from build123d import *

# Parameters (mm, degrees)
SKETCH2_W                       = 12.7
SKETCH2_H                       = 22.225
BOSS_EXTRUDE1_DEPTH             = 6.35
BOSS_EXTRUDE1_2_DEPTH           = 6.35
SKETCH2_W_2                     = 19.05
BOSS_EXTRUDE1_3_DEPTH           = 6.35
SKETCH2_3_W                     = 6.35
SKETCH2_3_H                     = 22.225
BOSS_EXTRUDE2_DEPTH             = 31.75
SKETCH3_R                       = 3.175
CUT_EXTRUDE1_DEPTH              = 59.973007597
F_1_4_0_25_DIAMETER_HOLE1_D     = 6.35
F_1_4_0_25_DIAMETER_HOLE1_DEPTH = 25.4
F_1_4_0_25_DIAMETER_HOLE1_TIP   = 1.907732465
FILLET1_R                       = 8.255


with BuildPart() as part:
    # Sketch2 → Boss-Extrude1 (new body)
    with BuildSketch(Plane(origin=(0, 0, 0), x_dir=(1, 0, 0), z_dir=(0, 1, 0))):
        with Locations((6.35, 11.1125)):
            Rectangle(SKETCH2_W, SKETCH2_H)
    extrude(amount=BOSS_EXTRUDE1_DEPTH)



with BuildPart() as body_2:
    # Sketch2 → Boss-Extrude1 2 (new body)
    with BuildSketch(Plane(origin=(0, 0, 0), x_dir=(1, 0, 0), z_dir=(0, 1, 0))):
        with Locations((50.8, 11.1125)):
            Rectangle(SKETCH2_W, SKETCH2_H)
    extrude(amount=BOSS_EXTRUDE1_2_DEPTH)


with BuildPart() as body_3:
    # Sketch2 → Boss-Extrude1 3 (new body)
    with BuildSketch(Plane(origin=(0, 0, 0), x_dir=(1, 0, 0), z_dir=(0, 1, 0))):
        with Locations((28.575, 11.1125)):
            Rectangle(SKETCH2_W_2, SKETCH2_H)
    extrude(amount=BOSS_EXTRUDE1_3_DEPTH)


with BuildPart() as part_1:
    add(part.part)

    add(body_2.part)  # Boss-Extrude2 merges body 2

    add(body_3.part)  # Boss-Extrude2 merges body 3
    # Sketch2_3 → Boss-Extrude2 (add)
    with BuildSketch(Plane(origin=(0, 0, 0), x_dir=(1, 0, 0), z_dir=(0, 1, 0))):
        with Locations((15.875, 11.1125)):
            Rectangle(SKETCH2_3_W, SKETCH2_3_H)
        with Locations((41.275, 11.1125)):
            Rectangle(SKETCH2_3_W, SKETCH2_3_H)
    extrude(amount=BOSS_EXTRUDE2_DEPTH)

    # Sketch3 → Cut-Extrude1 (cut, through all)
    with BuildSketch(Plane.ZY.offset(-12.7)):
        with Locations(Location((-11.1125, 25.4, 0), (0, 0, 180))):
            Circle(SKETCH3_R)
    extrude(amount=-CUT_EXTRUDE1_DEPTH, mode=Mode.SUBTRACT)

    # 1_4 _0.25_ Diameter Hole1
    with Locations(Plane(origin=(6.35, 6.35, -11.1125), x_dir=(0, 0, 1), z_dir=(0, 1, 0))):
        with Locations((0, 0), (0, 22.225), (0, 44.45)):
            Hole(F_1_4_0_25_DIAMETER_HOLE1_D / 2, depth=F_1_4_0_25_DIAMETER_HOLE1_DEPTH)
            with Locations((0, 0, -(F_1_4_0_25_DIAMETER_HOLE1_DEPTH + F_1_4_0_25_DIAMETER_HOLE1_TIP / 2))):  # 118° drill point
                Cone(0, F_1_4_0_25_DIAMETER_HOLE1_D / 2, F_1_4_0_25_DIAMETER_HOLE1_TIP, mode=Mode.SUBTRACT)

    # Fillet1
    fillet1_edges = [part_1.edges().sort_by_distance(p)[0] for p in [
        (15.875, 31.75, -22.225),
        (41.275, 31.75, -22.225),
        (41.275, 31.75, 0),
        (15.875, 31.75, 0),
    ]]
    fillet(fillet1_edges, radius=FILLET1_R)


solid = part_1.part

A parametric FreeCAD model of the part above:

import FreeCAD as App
import Part
import Sketcher
from FreeCAD import Vector
Q = App.Units.Quantity


def edges_at(feature, points):
    """Names of the edges that pass closest to the given points."""
    edges = feature.Shape.Edges
    near = lambda p: min(range(len(edges)), key=lambda i: edges[i].distToShape(Part.Vertex(*p))[0])
    return sorted({f"Edge{near(p) + 1}" for p in points})

doc = App.newDocument("Part")
params = doc.addObject("Spreadsheet::Sheet", "Params")
for row, (alias, value) in enumerate([
    ("sketch1_width", "0.5 in"),
    ("sketch1_height", "0.875 in"),
    ("pad1_length", "0.25 in"),
    ("sketch2_width", "0.5 in"),
    ("sketch2_height", "0.875 in"),
    ("pad2_length", "0.25 in"),
    ("sketch3_width", "0.75 in"),
    ("sketch3_height", "0.875 in"),
    ("pad3_length", "0.25 in"),
    ("sketch4_width", "0.25 in"),
    ("sketch4_height", "0.875 in"),
    ("pad4_length", "1.25 in"),
    ("sketch5_diameter", "0.25 in"),
    ("sketch6_diameter", "0.25 in"),
    ("hole_diameter", "0.25 in"),
    ("hole_depth", "1 in"),
    ("fillet_radius", "0.325 in"),
], start=1):
    params.set(f"A{row}", alias)
    params.set(f"B{row}", "=" + value)
    params.setAlias(f"B{row}", alias)

body = doc.addObject("PartDesign::Body", "Body")

# Sketch on XZ plane
sketch1 = body.newObject("Sketcher::SketchObject", "Sketch")
sketch1.AttachmentSupport = (doc.getObject("XZ_Plane"), [""])
sketch1.MapMode = "FlatFace"
sketch1.addGeometry(Part.LineSegment(Vector(0, -22, 0), Vector(0, 0, 0)), False)
sketch1.addGeometry(Part.LineSegment(Vector(0, 0, 0), Vector(13, 0, 0)), False)
sketch1.addGeometry(Part.LineSegment(Vector(13, 0, 0), Vector(13, -22, 0)), False)
sketch1.addGeometry(Part.LineSegment(Vector(13, -22, 0), Vector(0, -22, 0)), False)
sketch1.addConstraint(Sketcher.Constraint("Coincident", 0, 2, 1, 1))
sketch1.addConstraint(Sketcher.Constraint("Coincident", 1, 2, 2, 1))
sketch1.addConstraint(Sketcher.Constraint("Coincident", 2, 2, 3, 1))
sketch1.addConstraint(Sketcher.Constraint("Coincident", 3, 2, 0, 1))
sketch1.addConstraint(Sketcher.Constraint("Vertical", 0))
sketch1.addConstraint(Sketcher.Constraint("Horizontal", 1))
sketch1.addConstraint(Sketcher.Constraint("Vertical", 2))
sketch1.addConstraint(Sketcher.Constraint("Horizontal", 3))
sketch1.addConstraint(Sketcher.Constraint("Coincident", 0, 2, -1, 1))
sketch1.addConstraint(Sketcher.Constraint("DistanceX", 1, 1, 1, 2, Q("0.5 in")))
sketch1.addConstraint(Sketcher.Constraint("DistanceY", 0, 1, 0, 2, Q("0.875 in")))
sketch1.setExpression("Constraints[9]", "Params.sketch1_width")
sketch1.setExpression("Constraints[10]", "Params.sketch1_height")
pad1 = body.newObject("PartDesign::Pad", "Pad")
pad1.Profile = sketch1
pad1.setExpression("Length", "Params.pad1_length")
pad1.Reversed = True
body2 = doc.addObject("PartDesign::Body", "Body001")

# Sketch on XZ plane
sketch2 = body2.newObject("Sketcher::SketchObject", "Sketch001")
sketch2.AttachmentSupport = (doc.getObject("XZ_Plane001"), [""])
sketch2.MapMode = "FlatFace"
sketch2.addGeometry(Part.LineSegment(Vector(44, -22, 0), Vector(44, 0, 0)), False)
sketch2.addGeometry(Part.LineSegment(Vector(44, 0, 0), Vector(57, 0, 0)), False)
sketch2.addGeometry(Part.LineSegment(Vector(57, 0, 0), Vector(57, -22, 0)), False)
sketch2.addGeometry(Part.LineSegment(Vector(57, -22, 0), Vector(44, -22, 0)), False)
sketch2.addConstraint(Sketcher.Constraint("Coincident", 0, 2, 1, 1))
sketch2.addConstraint(Sketcher.Constraint("Coincident", 1, 2, 2, 1))
sketch2.addConstraint(Sketcher.Constraint("Coincident", 2, 2, 3, 1))
sketch2.addConstraint(Sketcher.Constraint("Coincident", 3, 2, 0, 1))
sketch2.addConstraint(Sketcher.Constraint("Vertical", 0))
sketch2.addConstraint(Sketcher.Constraint("Horizontal", 1))
sketch2.addConstraint(Sketcher.Constraint("Vertical", 2))
sketch2.addConstraint(Sketcher.Constraint("Horizontal", 3))
sketch2.addConstraint(Sketcher.Constraint("PointOnObject", 0, 2, -1))
sketch2.addConstraint(Sketcher.Constraint("DistanceX", 1, 1, 1, 2, Q("0.5 in")))
sketch2.addConstraint(Sketcher.Constraint("DistanceY", 0, 1, 0, 2, Q("0.875 in")))
sketch2.addConstraint(Sketcher.Constraint("DistanceX", -1, 1, 0, 2, Q("1.75 in")))
sketch2.setExpression("Constraints[9]", "Params.sketch2_width")
sketch2.setExpression("Constraints[10]", "Params.sketch2_height")
pad2 = body2.newObject("PartDesign::Pad", "Pad001")
pad2.Profile = sketch2
pad2.setExpression("Length", "Params.pad2_length")
pad2.Reversed = True
body3 = doc.addObject("PartDesign::Body", "Body002")

# Sketch on XZ plane
sketch3 = body3.newObject("Sketcher::SketchObject", "Sketch002")
sketch3.AttachmentSupport = (doc.getObject("XZ_Plane002"), [""])
sketch3.MapMode = "FlatFace"
sketch3.addGeometry(Part.LineSegment(Vector(19, -22, 0), Vector(19, 0, 0)), False)
sketch3.addGeometry(Part.LineSegment(Vector(19, 0, 0), Vector(38, 0, 0)), False)
sketch3.addGeometry(Part.LineSegment(Vector(38, 0, 0), Vector(38, -22, 0)), False)
sketch3.addGeometry(Part.LineSegment(Vector(38, -22, 0), Vector(19, -22, 0)), False)
sketch3.addConstraint(Sketcher.Constraint("Coincident", 0, 2, 1, 1))
sketch3.addConstraint(Sketcher.Constraint("Coincident", 1, 2, 2, 1))
sketch3.addConstraint(Sketcher.Constraint("Coincident", 2, 2, 3, 1))
sketch3.addConstraint(Sketcher.Constraint("Coincident", 3, 2, 0, 1))
sketch3.addConstraint(Sketcher.Constraint("Vertical", 0))
sketch3.addConstraint(Sketcher.Constraint("Horizontal", 1))
sketch3.addConstraint(Sketcher.Constraint("Vertical", 2))
sketch3.addConstraint(Sketcher.Constraint("Horizontal", 3))
sketch3.addConstraint(Sketcher.Constraint("PointOnObject", 0, 2, -1))
sketch3.addConstraint(Sketcher.Constraint("DistanceX", 1, 1, 1, 2, Q("0.75 in")))
sketch3.addConstraint(Sketcher.Constraint("DistanceX", -1, 1, 1, 2, Q("1.5 in")))
sketch3.addConstraint(Sketcher.Constraint("DistanceY", 0, 1, 0, 2, Q("0.875 in")))
sketch3.setExpression("Constraints[9]", "Params.sketch3_width")
sketch3.setExpression("Constraints[11]", "Params.sketch3_height")
pad3 = body3.newObject("PartDesign::Pad", "Pad002")
pad3.Profile = sketch3
pad3.setExpression("Length", "Params.pad3_length")
pad3.Reversed = True
body.AllowCompound = True
doc.recompute()

boolean = body.newObject("PartDesign::Boolean", "Boolean")
boolean.Type = "Fuse"
boolean.addObjects([body2])
doc.recompute()

boolean2 = body.newObject("PartDesign::Boolean", "Boolean001")
boolean2.Type = "Fuse"
boolean2.addObjects([body3])

# Sketch on XZ plane
sketch4 = body.newObject("Sketcher::SketchObject", "Sketch003")
sketch4.AttachmentSupport = (doc.getObject("XZ_Plane"), [""])
sketch4.MapMode = "FlatFace"
sketch4.addGeometry(Part.LineSegment(Vector(13, -22, 0), Vector(13, 0, 0)), False)
sketch4.addGeometry(Part.LineSegment(Vector(13, 0, 0), Vector(19, 0, 0)), False)
sketch4.addGeometry(Part.LineSegment(Vector(19, 0, 0), Vector(19, -22, 0)), False)
sketch4.addGeometry(Part.LineSegment(Vector(19, -22, 0), Vector(13, -22, 0)), False)
sketch4.addGeometry(Part.LineSegment(Vector(38, -22, 0), Vector(38, 0, 0)), False)
sketch4.addGeometry(Part.LineSegment(Vector(38, 0, 0), Vector(44, 0, 0)), False)
sketch4.addGeometry(Part.LineSegment(Vector(44, 0, 0), Vector(44, -22, 0)), False)
sketch4.addGeometry(Part.LineSegment(Vector(44, -22, 0), Vector(38, -22, 0)), False)
sketch4.addConstraint(Sketcher.Constraint("Coincident", 0, 2, 1, 1))
sketch4.addConstraint(Sketcher.Constraint("Coincident", 1, 2, 2, 1))
sketch4.addConstraint(Sketcher.Constraint("Coincident", 2, 2, 3, 1))
sketch4.addConstraint(Sketcher.Constraint("Coincident", 3, 2, 0, 1))
sketch4.addConstraint(Sketcher.Constraint("Coincident", 4, 2, 5, 1))
sketch4.addConstraint(Sketcher.Constraint("Coincident", 5, 2, 6, 1))
sketch4.addConstraint(Sketcher.Constraint("Coincident", 6, 2, 7, 1))
sketch4.addConstraint(Sketcher.Constraint("Coincident", 7, 2, 4, 1))
sketch4.addConstraint(Sketcher.Constraint("Vertical", 0))
sketch4.addConstraint(Sketcher.Constraint("Horizontal", 1))
sketch4.addConstraint(Sketcher.Constraint("Vertical", 2))
sketch4.addConstraint(Sketcher.Constraint("Horizontal", 3))
sketch4.addConstraint(Sketcher.Constraint("Vertical", 4))
sketch4.addConstraint(Sketcher.Constraint("Horizontal", 5))
sketch4.addConstraint(Sketcher.Constraint("Vertical", 6))
sketch4.addConstraint(Sketcher.Constraint("Horizontal", 7))
sketch4.addConstraint(Sketcher.Constraint("PointOnObject", 0, 2, -1))
sketch4.addConstraint(Sketcher.Constraint("PointOnObject", 4, 2, -1))
sketch4.addConstraint(Sketcher.Constraint("Horizontal", 3, 2, 6, 2))
sketch4.addConstraint(Sketcher.Constraint("Equal", 3, 5))
sketch4.addConstraint(Sketcher.Constraint("DistanceX", 0, 2, 4, 2, Q("1 in")))
sketch4.addConstraint(Sketcher.Constraint("DistanceX", 1, 1, 1, 2, Q("0.25 in")))
sketch4.addConstraint(Sketcher.Constraint("DistanceX", -1, 1, 0, 2, Q("0.5 in")))
sketch4.addConstraint(Sketcher.Constraint("DistanceY", 0, 1, 0, 2, Q("0.875 in")))
sketch4.setExpression("Constraints[21]", "Params.sketch4_width")
sketch4.setExpression("Constraints[23]", "Params.sketch4_height")
pad4 = body.newObject("PartDesign::Pad", "Pad003")
pad4.Profile = sketch4
pad4.setExpression("Length", "Params.pad4_length")
pad4.Reversed = True

# Sketch on YZ plane
sketch5 = body.newObject("Sketcher::SketchObject", "Sketch004")
sketch5.AttachmentSupport = (doc.getObject("YZ_Plane"), [""])
sketch5.MapMode = "FlatFace"
sketch5.AttachmentOffset = App.Placement(Vector(0, 0, 0.5 * 25.4), App.Rotation())
sketch5.addGeometry(Part.Circle(Vector(25.4, -11.1, 0), Vector(0, 0, 1), 3.2), False)
sketch5.addConstraint(Sketcher.Constraint("Diameter", 0, Q("0.25 in")))
sketch5.addConstraint(Sketcher.Constraint("DistanceX", -1, 1, 0, 3, Q("1 in")))
sketch5.addConstraint(Sketcher.Constraint("DistanceY", 0, 3, -1, 1, Q("0.4375 in")))
sketch5.setExpression("Constraints[0]", "Params.sketch5_diameter")
pocket1 = body.newObject("PartDesign::Pocket", "Pocket")
pocket1.Profile = sketch5
pocket1.Type = "ThroughAll"
pocket1.Reversed = True

# Sketch on XZ plane
sketch6 = body.newObject("Sketcher::SketchObject", "Sketch005")
sketch6.AttachmentSupport = (doc.getObject("XZ_Plane"), [""])
sketch6.MapMode = "FlatFace"
sketch6.AttachmentOffset = App.Placement(Vector(0, 0, -0.25 * 25.4), App.Rotation())
sketch6.addGeometry(Part.Circle(Vector(6.3, -11.1, 0), Vector(0, 0, 1), 3.2), False)
sketch6.addGeometry(Part.Circle(Vector(28.6, -11.1, 0), Vector(0, 0, 1), 3.2), False)
sketch6.addGeometry(Part.Circle(Vector(50.8, -11.1, 0), Vector(0, 0, 1), 3.2), False)
sketch6.addConstraint(Sketcher.Constraint("Equal", 0, 1))
sketch6.addConstraint(Sketcher.Constraint("Equal", 1, 2))
sketch6.addConstraint(Sketcher.Constraint("Horizontal", 0, 3, 1, 3))
sketch6.addConstraint(Sketcher.Constraint("Horizontal", 1, 3, 2, 3))
sketch6.addConstraint(Sketcher.Constraint("Diameter", 0, Q("0.25 in")))
sketch6.addConstraint(Sketcher.Constraint("DistanceX", -1, 1, 2, 3, Q("2 in")))
sketch6.addConstraint(Sketcher.Constraint("DistanceX", -1, 1, 0, 3, Q("0.25 in")))
sketch6.addConstraint(Sketcher.Constraint("DistanceY", 0, 3, -1, 1, Q("0.4375 in")))
sketch6.addConstraint(Sketcher.Constraint("DistanceX", -1, 1, 1, 3, Q("1.125 in")))
sketch6.setExpression("Constraints[4]", "Params.sketch6_diameter")
doc.recompute()
hole = body.newObject("PartDesign::Hole", "Hole")
hole.Profile = sketch6
hole.ThreadType = "None"
hole.setExpression("Diameter", "Params.hole_diameter")
hole.DepthType = "Dimension"
hole.setExpression("Depth", "Params.hole_depth")
hole.DrillPoint = "Angled"
hole.DrillPointAngle = 118
hole.Reversed = True
doc.recompute()

fillet = body.newObject("PartDesign::Fillet", "Fillet")
fillet.Base = (hole, edges_at(hole, [
    (15.875, 31.75, -22.225),
    (41.275, 31.75, -22.225),
    (41.275, 31.75, 0),
    (15.875, 31.75, 0),
]))
fillet.setExpression("Radius", "Params.fillet_radius")

doc.recompute()
